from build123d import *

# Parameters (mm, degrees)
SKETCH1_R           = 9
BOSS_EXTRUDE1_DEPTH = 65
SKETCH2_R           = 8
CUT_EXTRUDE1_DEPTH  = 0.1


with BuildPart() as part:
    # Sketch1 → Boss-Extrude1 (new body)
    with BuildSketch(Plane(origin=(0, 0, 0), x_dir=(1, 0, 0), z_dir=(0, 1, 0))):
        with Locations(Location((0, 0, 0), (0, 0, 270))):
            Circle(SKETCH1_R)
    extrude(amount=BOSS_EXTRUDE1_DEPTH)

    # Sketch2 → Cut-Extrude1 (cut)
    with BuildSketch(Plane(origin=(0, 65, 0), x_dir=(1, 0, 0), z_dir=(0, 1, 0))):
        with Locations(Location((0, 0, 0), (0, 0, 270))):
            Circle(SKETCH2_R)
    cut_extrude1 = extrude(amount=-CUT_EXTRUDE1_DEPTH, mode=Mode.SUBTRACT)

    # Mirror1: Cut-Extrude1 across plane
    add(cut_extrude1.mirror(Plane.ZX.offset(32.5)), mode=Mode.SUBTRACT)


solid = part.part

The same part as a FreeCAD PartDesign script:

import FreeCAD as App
import Part
import Sketcher
from FreeCAD import Vector

doc = App.newDocument("Part")
params = doc.addObject("Spreadsheet::Sheet", "Params")
for row, (alias, value) in enumerate([
    ("sketch1_diameter", "18 mm"),
    ("pad1_length", "65 mm"),
    ("sketch2_diameter", "16 mm"),
    ("pocket1_length", "0.1 mm"),
], start=1):
    params.set(f"A{row}", alias)
    params.set(f"B{row}", "=" + value)
    params.setAlias(f"B{row}", alias)

body = doc.addObject("PartDesign::Body", "Body")

# Sketch on XZ plane
sketch1 = body.newObject("Sketcher::SketchObject", "Sketch")
sketch1.AttachmentSupport = (doc.getObject("XZ_Plane"), [""])
sketch1.MapMode = "FlatFace"
sketch1.addGeometry(Part.Circle(Vector(0, 0, 0), Vector(0, 0, 1), 9), False)
sketch1.addConstraint(Sketcher.Constraint("Coincident", 0, 3, -1, 1))
sketch1.addConstraint(Sketcher.Constraint("Diameter", 0, 18.0))
sketch1.setExpression("Constraints[1]", "Params.sketch1_diameter")
pad1 = body.newObject("PartDesign::Pad", "Pad")
pad1.Profile = sketch1
pad1.setExpression("Length", "Params.pad1_length")
pad1.Reversed = True

# Sketch on XZ plane
sketch2 = body.newObject("Sketcher::SketchObject", "Sketch001")
sketch2.AttachmentSupport = (doc.getObject("XZ_Plane"), [""])
sketch2.MapMode = "FlatFace"
sketch2.AttachmentOffset = App.Placement(Vector(0, 0, -65), App.Rotation())
sketch2.addGeometry(Part.Circle(Vector(0, 0, 0), Vector(0, 0, 1), 8), False)
sketch2.addConstraint(Sketcher.Constraint("Coincident", 0, 3, -1, 1))
sketch2.addConstraint(Sketcher.Constraint("Diameter", 0, 16.0))
sketch2.setExpression("Constraints[1]", "Params.sketch2_diameter")
pocket1 = body.newObject("PartDesign::Pocket", "Pocket")
pocket1.Profile = sketch2
pocket1.setExpression("Length", "Params.pocket1_length")
pocket1.Reversed = True
doc.recompute()

datumplane = body.newObject("PartDesign::Plane", "DatumPlane")
datumplane.AttachmentSupport = (doc.getObject("XZ_Plane"), [""])
datumplane.MapMode = "FlatFace"
datumplane.AttachmentOffset = App.Placement(Vector(0, 0, -32.5), App.Rotation())
mirrored = body.newObject("PartDesign::Mirrored", "Mirrored")
mirrored.Originals = [pocket1]
mirrored.MirrorPlane = (datumplane, [""])
body.Tip = mirrored

doc.recompute()
